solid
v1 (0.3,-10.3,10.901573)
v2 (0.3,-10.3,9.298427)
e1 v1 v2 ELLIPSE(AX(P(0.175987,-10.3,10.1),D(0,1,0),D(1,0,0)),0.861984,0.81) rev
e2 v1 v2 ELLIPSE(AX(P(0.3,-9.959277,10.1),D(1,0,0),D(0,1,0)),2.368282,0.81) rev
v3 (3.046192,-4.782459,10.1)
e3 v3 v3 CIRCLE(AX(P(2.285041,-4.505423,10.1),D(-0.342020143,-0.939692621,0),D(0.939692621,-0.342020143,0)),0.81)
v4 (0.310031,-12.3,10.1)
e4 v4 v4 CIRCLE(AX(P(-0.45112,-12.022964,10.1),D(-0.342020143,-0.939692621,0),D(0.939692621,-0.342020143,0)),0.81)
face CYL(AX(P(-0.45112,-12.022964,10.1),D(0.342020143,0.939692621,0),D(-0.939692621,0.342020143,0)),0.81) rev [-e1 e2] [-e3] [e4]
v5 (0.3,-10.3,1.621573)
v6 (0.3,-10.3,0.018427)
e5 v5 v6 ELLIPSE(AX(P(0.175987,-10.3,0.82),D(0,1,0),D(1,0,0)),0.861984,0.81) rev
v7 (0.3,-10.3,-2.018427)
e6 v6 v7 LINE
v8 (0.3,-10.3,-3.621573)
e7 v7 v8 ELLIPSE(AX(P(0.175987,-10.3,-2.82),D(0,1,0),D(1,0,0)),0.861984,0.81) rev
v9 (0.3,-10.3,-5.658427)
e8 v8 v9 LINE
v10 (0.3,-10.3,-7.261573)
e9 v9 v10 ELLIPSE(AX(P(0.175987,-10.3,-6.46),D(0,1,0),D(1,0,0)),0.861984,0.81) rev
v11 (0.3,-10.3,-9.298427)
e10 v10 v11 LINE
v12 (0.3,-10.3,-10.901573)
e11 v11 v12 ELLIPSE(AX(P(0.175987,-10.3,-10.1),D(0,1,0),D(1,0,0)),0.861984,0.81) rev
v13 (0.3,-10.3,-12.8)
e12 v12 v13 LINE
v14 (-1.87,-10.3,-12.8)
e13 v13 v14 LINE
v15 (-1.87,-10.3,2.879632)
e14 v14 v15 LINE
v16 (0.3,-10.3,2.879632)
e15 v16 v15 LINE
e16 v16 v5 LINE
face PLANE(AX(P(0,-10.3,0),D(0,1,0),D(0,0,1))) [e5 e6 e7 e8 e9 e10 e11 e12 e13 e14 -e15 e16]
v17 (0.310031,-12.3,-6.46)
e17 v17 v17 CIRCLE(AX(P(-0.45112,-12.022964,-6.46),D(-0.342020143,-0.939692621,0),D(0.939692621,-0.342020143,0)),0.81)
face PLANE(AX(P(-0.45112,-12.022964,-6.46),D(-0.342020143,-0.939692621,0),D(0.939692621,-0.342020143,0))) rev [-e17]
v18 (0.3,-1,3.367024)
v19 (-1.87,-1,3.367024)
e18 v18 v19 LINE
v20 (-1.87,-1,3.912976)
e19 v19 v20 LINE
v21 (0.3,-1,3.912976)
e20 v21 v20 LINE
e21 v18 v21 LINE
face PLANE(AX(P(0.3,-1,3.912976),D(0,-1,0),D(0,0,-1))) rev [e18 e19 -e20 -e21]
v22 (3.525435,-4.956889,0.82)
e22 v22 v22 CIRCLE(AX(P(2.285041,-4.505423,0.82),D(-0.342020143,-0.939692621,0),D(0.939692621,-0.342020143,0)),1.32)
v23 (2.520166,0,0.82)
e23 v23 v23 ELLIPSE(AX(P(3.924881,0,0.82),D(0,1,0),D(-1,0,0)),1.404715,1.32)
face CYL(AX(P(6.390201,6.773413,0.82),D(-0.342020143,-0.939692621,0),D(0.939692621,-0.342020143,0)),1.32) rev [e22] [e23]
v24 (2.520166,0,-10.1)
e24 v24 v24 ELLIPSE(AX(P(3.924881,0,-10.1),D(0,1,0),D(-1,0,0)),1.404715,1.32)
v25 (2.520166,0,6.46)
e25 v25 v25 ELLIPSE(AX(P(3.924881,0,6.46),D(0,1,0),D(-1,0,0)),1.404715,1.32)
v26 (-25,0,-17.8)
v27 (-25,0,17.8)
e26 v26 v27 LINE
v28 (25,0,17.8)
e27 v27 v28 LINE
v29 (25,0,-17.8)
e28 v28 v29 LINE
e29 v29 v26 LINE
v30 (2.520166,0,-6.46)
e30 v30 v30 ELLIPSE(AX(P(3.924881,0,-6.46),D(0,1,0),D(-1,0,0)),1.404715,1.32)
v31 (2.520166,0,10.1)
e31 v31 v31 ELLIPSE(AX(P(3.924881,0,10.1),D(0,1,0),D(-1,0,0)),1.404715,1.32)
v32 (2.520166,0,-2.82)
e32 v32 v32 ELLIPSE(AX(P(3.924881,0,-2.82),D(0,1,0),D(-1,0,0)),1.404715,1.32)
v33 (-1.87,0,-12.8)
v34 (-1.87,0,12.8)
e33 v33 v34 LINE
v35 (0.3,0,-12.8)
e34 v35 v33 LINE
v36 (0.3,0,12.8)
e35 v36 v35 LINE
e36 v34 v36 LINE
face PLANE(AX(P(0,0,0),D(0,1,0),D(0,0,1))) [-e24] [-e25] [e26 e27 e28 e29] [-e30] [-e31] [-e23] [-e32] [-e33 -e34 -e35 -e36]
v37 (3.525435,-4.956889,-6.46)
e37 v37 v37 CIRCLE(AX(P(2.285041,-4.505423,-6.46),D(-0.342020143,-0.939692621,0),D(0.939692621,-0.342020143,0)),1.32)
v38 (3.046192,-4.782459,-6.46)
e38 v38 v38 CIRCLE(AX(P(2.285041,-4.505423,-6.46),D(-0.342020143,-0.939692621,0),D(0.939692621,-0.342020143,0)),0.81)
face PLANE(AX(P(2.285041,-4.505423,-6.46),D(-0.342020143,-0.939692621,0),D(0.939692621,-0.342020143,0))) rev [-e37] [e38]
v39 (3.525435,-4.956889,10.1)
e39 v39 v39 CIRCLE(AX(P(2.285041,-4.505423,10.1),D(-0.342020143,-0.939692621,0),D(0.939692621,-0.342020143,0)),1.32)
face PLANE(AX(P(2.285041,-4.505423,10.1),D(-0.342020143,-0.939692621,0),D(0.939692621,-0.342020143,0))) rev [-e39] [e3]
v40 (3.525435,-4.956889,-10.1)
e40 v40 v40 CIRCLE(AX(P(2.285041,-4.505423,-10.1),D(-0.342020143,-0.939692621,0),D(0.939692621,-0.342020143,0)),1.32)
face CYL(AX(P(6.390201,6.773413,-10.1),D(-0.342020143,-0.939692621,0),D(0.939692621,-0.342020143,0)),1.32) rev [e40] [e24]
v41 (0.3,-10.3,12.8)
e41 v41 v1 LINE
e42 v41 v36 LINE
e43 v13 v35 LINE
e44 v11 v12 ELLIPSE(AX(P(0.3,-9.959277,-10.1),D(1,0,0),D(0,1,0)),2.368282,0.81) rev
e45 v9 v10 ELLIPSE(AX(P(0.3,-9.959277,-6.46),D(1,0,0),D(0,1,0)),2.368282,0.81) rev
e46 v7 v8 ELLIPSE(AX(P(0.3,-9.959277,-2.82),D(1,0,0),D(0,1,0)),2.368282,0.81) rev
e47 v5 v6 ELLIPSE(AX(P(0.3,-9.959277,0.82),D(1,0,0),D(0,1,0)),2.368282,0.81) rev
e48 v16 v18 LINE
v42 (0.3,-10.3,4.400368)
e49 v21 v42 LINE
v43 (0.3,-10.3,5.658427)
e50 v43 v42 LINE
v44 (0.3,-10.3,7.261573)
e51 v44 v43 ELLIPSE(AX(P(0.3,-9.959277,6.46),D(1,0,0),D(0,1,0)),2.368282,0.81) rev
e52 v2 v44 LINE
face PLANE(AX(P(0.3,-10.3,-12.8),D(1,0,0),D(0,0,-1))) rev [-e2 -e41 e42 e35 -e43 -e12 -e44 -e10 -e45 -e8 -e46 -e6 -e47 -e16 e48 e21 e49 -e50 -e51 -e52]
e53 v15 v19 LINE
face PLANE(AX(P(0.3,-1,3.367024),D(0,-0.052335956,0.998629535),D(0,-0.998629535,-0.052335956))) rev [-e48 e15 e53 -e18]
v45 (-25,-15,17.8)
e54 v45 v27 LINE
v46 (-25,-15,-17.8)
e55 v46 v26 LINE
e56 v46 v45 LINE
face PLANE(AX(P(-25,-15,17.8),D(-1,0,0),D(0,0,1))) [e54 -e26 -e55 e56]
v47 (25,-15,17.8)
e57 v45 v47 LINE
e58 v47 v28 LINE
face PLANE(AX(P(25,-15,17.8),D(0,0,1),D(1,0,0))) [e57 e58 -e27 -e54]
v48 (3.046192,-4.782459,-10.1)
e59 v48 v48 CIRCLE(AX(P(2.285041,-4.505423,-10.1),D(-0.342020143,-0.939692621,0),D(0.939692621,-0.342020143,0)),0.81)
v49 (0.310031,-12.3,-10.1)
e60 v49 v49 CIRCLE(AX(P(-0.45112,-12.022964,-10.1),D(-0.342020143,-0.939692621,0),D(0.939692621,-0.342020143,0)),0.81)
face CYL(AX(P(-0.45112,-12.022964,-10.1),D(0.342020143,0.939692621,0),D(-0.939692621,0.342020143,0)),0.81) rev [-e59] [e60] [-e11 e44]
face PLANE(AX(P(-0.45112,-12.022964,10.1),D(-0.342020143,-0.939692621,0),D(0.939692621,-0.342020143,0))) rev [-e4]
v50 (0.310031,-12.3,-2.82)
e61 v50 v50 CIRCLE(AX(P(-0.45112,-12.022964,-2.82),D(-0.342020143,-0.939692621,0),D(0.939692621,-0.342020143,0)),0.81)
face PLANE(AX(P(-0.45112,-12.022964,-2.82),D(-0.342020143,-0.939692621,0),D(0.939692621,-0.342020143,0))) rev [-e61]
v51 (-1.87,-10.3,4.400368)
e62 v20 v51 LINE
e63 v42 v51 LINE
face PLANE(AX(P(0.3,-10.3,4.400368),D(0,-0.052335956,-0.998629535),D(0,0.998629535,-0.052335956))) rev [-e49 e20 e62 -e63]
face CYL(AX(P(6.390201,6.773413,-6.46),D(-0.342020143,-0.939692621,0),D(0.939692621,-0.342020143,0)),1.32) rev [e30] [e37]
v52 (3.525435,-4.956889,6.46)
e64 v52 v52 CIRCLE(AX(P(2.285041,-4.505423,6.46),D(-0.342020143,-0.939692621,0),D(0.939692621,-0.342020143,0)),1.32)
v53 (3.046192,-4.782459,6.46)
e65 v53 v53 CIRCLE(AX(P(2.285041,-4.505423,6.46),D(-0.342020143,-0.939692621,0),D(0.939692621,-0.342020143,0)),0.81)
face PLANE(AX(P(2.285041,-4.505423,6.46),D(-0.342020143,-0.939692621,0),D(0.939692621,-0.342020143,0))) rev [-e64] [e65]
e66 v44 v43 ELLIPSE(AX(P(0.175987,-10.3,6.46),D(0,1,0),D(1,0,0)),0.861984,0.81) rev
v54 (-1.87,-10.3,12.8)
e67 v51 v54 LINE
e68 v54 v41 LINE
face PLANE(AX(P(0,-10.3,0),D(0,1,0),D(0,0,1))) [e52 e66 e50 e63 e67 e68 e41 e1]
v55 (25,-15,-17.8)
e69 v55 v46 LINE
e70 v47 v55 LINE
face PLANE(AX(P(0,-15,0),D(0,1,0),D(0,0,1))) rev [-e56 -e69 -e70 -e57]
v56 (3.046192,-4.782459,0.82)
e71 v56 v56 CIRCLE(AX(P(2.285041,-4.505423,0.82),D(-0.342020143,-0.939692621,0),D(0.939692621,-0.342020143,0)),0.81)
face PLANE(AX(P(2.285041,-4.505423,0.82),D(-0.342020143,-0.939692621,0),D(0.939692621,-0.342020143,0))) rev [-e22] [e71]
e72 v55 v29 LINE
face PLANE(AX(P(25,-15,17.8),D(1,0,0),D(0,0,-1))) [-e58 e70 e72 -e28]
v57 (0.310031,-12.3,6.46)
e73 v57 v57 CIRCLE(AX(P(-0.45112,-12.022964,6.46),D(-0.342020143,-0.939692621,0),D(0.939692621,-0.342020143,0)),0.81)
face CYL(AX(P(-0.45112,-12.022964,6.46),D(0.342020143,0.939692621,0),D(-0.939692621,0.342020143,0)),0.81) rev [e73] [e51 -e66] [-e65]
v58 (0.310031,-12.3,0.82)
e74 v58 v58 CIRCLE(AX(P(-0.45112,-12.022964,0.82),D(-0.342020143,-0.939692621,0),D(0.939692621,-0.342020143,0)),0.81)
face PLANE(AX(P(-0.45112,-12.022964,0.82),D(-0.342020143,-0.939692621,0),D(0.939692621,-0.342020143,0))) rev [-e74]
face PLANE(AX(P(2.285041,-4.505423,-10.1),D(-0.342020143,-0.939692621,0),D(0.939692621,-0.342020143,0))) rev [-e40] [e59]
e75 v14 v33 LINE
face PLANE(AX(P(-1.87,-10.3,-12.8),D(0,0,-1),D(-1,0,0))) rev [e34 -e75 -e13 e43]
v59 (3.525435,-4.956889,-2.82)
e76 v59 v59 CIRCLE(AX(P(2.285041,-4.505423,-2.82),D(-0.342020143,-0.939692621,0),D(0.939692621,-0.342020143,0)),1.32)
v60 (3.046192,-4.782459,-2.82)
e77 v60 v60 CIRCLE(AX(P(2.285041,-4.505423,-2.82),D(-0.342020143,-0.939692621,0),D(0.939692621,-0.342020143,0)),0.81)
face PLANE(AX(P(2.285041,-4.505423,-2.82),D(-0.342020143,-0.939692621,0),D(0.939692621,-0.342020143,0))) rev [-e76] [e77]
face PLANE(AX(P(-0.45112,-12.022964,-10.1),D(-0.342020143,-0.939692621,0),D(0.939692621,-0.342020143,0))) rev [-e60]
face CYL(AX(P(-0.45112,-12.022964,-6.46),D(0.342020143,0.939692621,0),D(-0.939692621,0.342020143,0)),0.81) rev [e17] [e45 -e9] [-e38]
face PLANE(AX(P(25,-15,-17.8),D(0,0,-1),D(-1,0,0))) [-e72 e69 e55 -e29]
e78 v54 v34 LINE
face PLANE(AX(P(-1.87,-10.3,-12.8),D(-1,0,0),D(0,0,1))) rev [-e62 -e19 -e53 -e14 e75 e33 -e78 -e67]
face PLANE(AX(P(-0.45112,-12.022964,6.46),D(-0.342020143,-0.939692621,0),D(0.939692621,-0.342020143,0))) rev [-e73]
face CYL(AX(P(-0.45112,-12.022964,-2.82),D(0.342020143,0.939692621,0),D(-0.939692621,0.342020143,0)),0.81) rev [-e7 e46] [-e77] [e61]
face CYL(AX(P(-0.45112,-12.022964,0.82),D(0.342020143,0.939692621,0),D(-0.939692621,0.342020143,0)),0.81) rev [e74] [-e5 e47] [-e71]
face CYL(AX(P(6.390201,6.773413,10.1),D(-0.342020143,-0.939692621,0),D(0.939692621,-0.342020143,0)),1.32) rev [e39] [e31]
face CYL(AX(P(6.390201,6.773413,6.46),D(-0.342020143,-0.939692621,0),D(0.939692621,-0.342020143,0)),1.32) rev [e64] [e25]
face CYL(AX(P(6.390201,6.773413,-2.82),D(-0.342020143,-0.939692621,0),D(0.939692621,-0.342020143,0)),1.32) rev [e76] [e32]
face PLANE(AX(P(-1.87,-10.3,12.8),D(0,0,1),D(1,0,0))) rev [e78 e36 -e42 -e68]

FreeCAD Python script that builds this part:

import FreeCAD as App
import Part
import Sketcher
Q = App.Units.Quantity

doc = App.newDocument("Part")
body = doc.addObject("PartDesign::Body", "Body")

# Sketch on XZ plane
sketch1 = body.newObject("Sketcher::SketchObject", "Sketch")
sketch1.AttachmentSupport = (doc.getObject("XZ_Plane"), [""])
sketch1.MapMode = "FlatFace"
sketch1.addGeometry([
    Part.LineSegment(App.Vector(-25, -18, 0), App.Vector(-25, 18, 0)),
    Part.LineSegment(App.Vector(-25, 18, 0), App.Vector(25, 18, 0)),
    Part.LineSegment(App.Vector(25, 18, 0), App.Vector(25, -18, 0)),
    Part.LineSegment(App.Vector(25, -18, 0), App.Vector(-25, -18, 0)),
], False)
sketch1.addConstraint([
    Sketcher.Constraint("Coincident", 0, 2, 1, 1),
    Sketcher.Constraint("Coincident", 1, 2, 2, 1),
    Sketcher.Constraint("Coincident", 2, 2, 3, 1),
    Sketcher.Constraint("Coincident", 3, 2, 0, 1),
    Sketcher.Constraint("Vertical", 0),
    Sketcher.Constraint("Horizontal", 1),
    Sketcher.Constraint("Vertical", 2),
    Sketcher.Constraint("Horizontal", 3),
    Sketcher.Constraint("Symmetric", 0, 2, 2, 2, -1, 1),
    Sketcher.Constraint("DistanceX", 1, 1, 1, 2, Q("50 mm")),
    Sketcher.Constraint("DistanceY", 0, 1, 0, 2, Q("35.6 mm")),
])
pad1 = body.newObject("PartDesign::Pad", "Pad")
pad1.Profile = sketch1
pad1.Length = 15

# Sketch on XZ plane
sketch2 = body.newObject("Sketcher::SketchObject", "Sketch001")
sketch2.AttachmentSupport = (doc.getObject("XZ_Plane"), [""])
sketch2.MapMode = "FlatFace"
sketch2.addGeometry([
    Part.LineSegment(App.Vector(-1.9, -12.8, 0), App.Vector(-1.9, 12.8, 0)),
    Part.LineSegment(App.Vector(-1.9, 12.8, 0), App.Vector(0.3, 12.8, 0)),
    Part.LineSegment(App.Vector(0.3, 12.8, 0), App.Vector(0.3, -12.8, 0)),
    Part.LineSegment(App.Vector(0.3, -12.8, 0), App.Vector(-1.9, -12.8, 0)),
], False)
sketch2.addConstraint([
    Sketcher.Constraint("Coincident", 0, 2, 1, 1),
    Sketcher.Constraint("Coincident", 1, 2, 2, 1),
    Sketcher.Constraint("Coincident", 2, 2, 3, 1),
    Sketcher.Constraint("Coincident", 3, 2, 0, 1),
    Sketcher.Constraint("Vertical", 0),
    Sketcher.Constraint("Horizontal", 1),
    Sketcher.Constraint("Vertical", 2),
    Sketcher.Constraint("Horizontal", 3),
    Sketcher.Constraint("DistanceY", 0, 1, 0, 2, Q("25.6 mm")),
    Sketcher.Constraint("DistanceX", 1, 1, 1, 2, Q("2.17 mm")),
    Sketcher.Constraint("DistanceY", -1, 1, 0, 2, Q("12.8 mm")),
    Sketcher.Constraint("DistanceX", -1, 1, 1, 2, Q("0.3 mm")),
])
pocket1 = body.newObject("PartDesign::Pocket", "Pocket")
pocket1.Profile = sketch2
pocket1.Length = 10.3
pocket1.Reversed = True

# Sketch on an angled plane
sketch3 = body.newObject("Sketcher::SketchObject", "Sketch002")
sketch3.Placement = App.Placement(App.Vector(-1.180716, -3.24399, 0), App.Rotation(App.Vector(-0.939692621, 0.342020143, 0), App.Vector(0, 0, -1), App.Vector(-0.342020143, -0.939692621, 0), "ZXY"))
sketch3.addGeometry([
    Part.Circle(App.Vector(-3.7, 10.1, 0), App.Vector(0, 0, 1), 1.3),  # 0
    Part.Circle(App.Vector(-3.7, 6.5, 0), App.Vector(0, 0, 1), 1.3),  # 1
    Part.Circle(App.Vector(-3.7, 2.8, 0), App.Vector(0, 0, 1), 1.3),  # 2
    Part.Circle(App.Vector(-3.7, -0.8, 0), App.Vector(0, 0, 1), 1.3),  # 3
    Part.Circle(App.Vector(-3.7, -6.5, 0), App.Vector(0, 0, 1), 1.3),  # 4
    Part.Circle(App.Vector(-3.7, -10.1, 0), App.Vector(0, 0, 1), 1.3),  # 5
], False)
sketch3.addConstraint([
    Sketcher.Constraint("Equal", 0, 1),
    Sketcher.Constraint("Equal", 1, 2),
    Sketcher.Constraint("Equal", 2, 3),
    Sketcher.Constraint("Equal", 3, 4),
    Sketcher.Constraint("Equal", 4, 5),
    Sketcher.Constraint("Symmetric", 1, 3, 4, 3, -1),
    Sketcher.Constraint("Symmetric", 0, 3, 5, 3, -1),
    Sketcher.Constraint("Vertical", 0, 3, 1, 3),
    Sketcher.Constraint("Vertical", 1, 3, 2, 3),
    Sketcher.Constraint("Vertical", 2, 3, 3, 3),
    Sketcher.Constraint("Diameter", 0, Q("2.64 mm")),
    Sketcher.Constraint("DistanceY", -1, 1, 0, 3, Q("10.1 mm")),
    Sketcher.Constraint("DistanceY", -1, 1, 1, 3, Q("6.46 mm")),
    Sketcher.Constraint("DistanceY", -1, 1, 2, 3, Q("2.82 mm")),
    Sketcher.Constraint("DistanceY", 3, 3, -1, 1, Q("0.82 mm")),
    Sketcher.Constraint("DistanceX", 0, 3, -1, 1, Q("3.688181 mm")),
])
pocket2 = body.newObject("PartDesign::Pocket", "Pocket001")
pocket2.Profile = sketch3
pocket2.Type = "ThroughAll"

# Sketch on an angled plane
sketch4 = body.newObject("Sketcher::SketchObject", "Sketch003")
sketch4.Placement = App.Placement(App.Vector(-1.180716, -3.24399, 0), App.Rotation(App.Vector(-0.939692621, 0.342020143, 0), App.Vector(0, 0, -1), App.Vector(-0.342020143, -0.939692621, 0), "ZXY"))
sketch4.addGeometry([
    Part.Circle(App.Vector(-3.7, -10.1, 0), App.Vector(0, 0, 1), 0.8),  # 0
    Part.Circle(App.Vector(-3.7, -6.5, 0), App.Vector(0, 0, 1), 0.8),  # 1
    Part.Circle(App.Vector(-3.7, -0.8, 0), App.Vector(0, 0, 1), 0.8),  # 2
    Part.Circle(App.Vector(-3.7, 2.8, 0), App.Vector(0, 0, 1), 0.8),  # 3
    Part.Circle(App.Vector(-3.7, 6.5, 0), App.Vector(0, 0, 1), 0.8),  # 4
    Part.Circle(App.Vector(-3.7, 10.1, 0), App.Vector(0, 0, 1), 0.8),  # 5
], False)
sketch4.addConstraint([
    Sketcher.Constraint("Equal", 0, 1),
    Sketcher.Constraint("Equal", 1, 2),
    Sketcher.Constraint("Equal", 2, 3),
    Sketcher.Constraint("Equal", 3, 4),
    Sketcher.Constraint("Equal", 4, 5),
    Sketcher.Constraint("Symmetric", 1, 3, 4, 3, -1),
    Sketcher.Constraint("Symmetric", 0, 3, 5, 3, -1),
    Sketcher.Constraint("Vertical", 0, 3, 1, 3),
    Sketcher.Constraint("Vertical", 1, 3, 2, 3),
    Sketcher.Constraint("Vertical", 2, 3, 3, 3),
    Sketcher.Constraint("Diameter", 0, Q("1.62 mm")),
    Sketcher.Constraint("DistanceY", 0, 3, -1, 1, Q("10.1 mm")),
    Sketcher.Constraint("DistanceY", 1, 3, -1, 1, Q("6.46 mm")),
    Sketcher.Constraint("DistanceY", 2, 3, -1, 1, Q("0.82 mm")),
    Sketcher.Constraint("DistanceY", -1, 1, 3, 3, Q("2.82 mm")),
    Sketcher.Constraint("DistanceX", 0, 3, -1, 1, Q("3.688181 mm")),
])
pocket3 = body.newObject("PartDesign::Pocket", "Pocket002")
pocket3.Profile = sketch4
pocket3.Length = 8
pocket3.Reversed = True

# Sketch on YZ plane
sketch5 = body.newObject("Sketcher::SketchObject", "Sketch004")
sketch5.AttachmentSupport = (doc.getObject("YZ_Plane"), [""])
sketch5.MapMode = "FlatFace"
sketch5.addGeometry([
    Part.LineSegment(App.Vector(-10.3, 4.4, 0), App.Vector(-10.3, 2.9, 0)),
    Part.LineSegment(App.Vector(-10.3, 2.9, 0), App.Vector(-1, 3.4, 0)),
    Part.LineSegment(App.Vector(-1, 3.4, 0), App.Vector(-1, 3.9, 0)),
    Part.LineSegment(App.Vector(-1, 3.9, 0), App.Vector(-10.3, 4.4, 0)),
], False)
sketch5.addConstraint([
    Sketcher.Constraint("Coincident", 0, 2, 1, 1),
    Sketcher.Constraint("Coincident", 1, 2, 2, 1),
    Sketcher.Constraint("Coincident", 2, 2, 3, 1),
    Sketcher.Constraint("Coincident", 3, 2, 0, 1),
    Sketcher.Constraint("Vertical", 0),
    Sketcher.Constraint("Vertical", 2),
    Sketcher.Constraint("Equal", 1, 3),
    Sketcher.Constraint("Angle", 1, Q("3 deg")),
    Sketcher.Constraint("DistanceX", 1, 2, -1, 1, Q("1 mm")),
    Sketcher.Constraint("DistanceX", 0, 2, -1, 1, Q("10.3 mm")),
    Sketcher.Constraint("DistanceY", 2, 1, 2, 2, Q("0.545952 mm")),
    Sketcher.Constraint("DistanceY", -1, 1, 0, 2, Q("2.879632 mm")),
])
pad2 = body.newObject("PartDesign::Pad", "Pad001")
pad2.Profile = sketch5
pad2.Type = "TwoLengths"
pad2.Length = 0.3
pad2.Length2 = 1.87

doc.recompute()
